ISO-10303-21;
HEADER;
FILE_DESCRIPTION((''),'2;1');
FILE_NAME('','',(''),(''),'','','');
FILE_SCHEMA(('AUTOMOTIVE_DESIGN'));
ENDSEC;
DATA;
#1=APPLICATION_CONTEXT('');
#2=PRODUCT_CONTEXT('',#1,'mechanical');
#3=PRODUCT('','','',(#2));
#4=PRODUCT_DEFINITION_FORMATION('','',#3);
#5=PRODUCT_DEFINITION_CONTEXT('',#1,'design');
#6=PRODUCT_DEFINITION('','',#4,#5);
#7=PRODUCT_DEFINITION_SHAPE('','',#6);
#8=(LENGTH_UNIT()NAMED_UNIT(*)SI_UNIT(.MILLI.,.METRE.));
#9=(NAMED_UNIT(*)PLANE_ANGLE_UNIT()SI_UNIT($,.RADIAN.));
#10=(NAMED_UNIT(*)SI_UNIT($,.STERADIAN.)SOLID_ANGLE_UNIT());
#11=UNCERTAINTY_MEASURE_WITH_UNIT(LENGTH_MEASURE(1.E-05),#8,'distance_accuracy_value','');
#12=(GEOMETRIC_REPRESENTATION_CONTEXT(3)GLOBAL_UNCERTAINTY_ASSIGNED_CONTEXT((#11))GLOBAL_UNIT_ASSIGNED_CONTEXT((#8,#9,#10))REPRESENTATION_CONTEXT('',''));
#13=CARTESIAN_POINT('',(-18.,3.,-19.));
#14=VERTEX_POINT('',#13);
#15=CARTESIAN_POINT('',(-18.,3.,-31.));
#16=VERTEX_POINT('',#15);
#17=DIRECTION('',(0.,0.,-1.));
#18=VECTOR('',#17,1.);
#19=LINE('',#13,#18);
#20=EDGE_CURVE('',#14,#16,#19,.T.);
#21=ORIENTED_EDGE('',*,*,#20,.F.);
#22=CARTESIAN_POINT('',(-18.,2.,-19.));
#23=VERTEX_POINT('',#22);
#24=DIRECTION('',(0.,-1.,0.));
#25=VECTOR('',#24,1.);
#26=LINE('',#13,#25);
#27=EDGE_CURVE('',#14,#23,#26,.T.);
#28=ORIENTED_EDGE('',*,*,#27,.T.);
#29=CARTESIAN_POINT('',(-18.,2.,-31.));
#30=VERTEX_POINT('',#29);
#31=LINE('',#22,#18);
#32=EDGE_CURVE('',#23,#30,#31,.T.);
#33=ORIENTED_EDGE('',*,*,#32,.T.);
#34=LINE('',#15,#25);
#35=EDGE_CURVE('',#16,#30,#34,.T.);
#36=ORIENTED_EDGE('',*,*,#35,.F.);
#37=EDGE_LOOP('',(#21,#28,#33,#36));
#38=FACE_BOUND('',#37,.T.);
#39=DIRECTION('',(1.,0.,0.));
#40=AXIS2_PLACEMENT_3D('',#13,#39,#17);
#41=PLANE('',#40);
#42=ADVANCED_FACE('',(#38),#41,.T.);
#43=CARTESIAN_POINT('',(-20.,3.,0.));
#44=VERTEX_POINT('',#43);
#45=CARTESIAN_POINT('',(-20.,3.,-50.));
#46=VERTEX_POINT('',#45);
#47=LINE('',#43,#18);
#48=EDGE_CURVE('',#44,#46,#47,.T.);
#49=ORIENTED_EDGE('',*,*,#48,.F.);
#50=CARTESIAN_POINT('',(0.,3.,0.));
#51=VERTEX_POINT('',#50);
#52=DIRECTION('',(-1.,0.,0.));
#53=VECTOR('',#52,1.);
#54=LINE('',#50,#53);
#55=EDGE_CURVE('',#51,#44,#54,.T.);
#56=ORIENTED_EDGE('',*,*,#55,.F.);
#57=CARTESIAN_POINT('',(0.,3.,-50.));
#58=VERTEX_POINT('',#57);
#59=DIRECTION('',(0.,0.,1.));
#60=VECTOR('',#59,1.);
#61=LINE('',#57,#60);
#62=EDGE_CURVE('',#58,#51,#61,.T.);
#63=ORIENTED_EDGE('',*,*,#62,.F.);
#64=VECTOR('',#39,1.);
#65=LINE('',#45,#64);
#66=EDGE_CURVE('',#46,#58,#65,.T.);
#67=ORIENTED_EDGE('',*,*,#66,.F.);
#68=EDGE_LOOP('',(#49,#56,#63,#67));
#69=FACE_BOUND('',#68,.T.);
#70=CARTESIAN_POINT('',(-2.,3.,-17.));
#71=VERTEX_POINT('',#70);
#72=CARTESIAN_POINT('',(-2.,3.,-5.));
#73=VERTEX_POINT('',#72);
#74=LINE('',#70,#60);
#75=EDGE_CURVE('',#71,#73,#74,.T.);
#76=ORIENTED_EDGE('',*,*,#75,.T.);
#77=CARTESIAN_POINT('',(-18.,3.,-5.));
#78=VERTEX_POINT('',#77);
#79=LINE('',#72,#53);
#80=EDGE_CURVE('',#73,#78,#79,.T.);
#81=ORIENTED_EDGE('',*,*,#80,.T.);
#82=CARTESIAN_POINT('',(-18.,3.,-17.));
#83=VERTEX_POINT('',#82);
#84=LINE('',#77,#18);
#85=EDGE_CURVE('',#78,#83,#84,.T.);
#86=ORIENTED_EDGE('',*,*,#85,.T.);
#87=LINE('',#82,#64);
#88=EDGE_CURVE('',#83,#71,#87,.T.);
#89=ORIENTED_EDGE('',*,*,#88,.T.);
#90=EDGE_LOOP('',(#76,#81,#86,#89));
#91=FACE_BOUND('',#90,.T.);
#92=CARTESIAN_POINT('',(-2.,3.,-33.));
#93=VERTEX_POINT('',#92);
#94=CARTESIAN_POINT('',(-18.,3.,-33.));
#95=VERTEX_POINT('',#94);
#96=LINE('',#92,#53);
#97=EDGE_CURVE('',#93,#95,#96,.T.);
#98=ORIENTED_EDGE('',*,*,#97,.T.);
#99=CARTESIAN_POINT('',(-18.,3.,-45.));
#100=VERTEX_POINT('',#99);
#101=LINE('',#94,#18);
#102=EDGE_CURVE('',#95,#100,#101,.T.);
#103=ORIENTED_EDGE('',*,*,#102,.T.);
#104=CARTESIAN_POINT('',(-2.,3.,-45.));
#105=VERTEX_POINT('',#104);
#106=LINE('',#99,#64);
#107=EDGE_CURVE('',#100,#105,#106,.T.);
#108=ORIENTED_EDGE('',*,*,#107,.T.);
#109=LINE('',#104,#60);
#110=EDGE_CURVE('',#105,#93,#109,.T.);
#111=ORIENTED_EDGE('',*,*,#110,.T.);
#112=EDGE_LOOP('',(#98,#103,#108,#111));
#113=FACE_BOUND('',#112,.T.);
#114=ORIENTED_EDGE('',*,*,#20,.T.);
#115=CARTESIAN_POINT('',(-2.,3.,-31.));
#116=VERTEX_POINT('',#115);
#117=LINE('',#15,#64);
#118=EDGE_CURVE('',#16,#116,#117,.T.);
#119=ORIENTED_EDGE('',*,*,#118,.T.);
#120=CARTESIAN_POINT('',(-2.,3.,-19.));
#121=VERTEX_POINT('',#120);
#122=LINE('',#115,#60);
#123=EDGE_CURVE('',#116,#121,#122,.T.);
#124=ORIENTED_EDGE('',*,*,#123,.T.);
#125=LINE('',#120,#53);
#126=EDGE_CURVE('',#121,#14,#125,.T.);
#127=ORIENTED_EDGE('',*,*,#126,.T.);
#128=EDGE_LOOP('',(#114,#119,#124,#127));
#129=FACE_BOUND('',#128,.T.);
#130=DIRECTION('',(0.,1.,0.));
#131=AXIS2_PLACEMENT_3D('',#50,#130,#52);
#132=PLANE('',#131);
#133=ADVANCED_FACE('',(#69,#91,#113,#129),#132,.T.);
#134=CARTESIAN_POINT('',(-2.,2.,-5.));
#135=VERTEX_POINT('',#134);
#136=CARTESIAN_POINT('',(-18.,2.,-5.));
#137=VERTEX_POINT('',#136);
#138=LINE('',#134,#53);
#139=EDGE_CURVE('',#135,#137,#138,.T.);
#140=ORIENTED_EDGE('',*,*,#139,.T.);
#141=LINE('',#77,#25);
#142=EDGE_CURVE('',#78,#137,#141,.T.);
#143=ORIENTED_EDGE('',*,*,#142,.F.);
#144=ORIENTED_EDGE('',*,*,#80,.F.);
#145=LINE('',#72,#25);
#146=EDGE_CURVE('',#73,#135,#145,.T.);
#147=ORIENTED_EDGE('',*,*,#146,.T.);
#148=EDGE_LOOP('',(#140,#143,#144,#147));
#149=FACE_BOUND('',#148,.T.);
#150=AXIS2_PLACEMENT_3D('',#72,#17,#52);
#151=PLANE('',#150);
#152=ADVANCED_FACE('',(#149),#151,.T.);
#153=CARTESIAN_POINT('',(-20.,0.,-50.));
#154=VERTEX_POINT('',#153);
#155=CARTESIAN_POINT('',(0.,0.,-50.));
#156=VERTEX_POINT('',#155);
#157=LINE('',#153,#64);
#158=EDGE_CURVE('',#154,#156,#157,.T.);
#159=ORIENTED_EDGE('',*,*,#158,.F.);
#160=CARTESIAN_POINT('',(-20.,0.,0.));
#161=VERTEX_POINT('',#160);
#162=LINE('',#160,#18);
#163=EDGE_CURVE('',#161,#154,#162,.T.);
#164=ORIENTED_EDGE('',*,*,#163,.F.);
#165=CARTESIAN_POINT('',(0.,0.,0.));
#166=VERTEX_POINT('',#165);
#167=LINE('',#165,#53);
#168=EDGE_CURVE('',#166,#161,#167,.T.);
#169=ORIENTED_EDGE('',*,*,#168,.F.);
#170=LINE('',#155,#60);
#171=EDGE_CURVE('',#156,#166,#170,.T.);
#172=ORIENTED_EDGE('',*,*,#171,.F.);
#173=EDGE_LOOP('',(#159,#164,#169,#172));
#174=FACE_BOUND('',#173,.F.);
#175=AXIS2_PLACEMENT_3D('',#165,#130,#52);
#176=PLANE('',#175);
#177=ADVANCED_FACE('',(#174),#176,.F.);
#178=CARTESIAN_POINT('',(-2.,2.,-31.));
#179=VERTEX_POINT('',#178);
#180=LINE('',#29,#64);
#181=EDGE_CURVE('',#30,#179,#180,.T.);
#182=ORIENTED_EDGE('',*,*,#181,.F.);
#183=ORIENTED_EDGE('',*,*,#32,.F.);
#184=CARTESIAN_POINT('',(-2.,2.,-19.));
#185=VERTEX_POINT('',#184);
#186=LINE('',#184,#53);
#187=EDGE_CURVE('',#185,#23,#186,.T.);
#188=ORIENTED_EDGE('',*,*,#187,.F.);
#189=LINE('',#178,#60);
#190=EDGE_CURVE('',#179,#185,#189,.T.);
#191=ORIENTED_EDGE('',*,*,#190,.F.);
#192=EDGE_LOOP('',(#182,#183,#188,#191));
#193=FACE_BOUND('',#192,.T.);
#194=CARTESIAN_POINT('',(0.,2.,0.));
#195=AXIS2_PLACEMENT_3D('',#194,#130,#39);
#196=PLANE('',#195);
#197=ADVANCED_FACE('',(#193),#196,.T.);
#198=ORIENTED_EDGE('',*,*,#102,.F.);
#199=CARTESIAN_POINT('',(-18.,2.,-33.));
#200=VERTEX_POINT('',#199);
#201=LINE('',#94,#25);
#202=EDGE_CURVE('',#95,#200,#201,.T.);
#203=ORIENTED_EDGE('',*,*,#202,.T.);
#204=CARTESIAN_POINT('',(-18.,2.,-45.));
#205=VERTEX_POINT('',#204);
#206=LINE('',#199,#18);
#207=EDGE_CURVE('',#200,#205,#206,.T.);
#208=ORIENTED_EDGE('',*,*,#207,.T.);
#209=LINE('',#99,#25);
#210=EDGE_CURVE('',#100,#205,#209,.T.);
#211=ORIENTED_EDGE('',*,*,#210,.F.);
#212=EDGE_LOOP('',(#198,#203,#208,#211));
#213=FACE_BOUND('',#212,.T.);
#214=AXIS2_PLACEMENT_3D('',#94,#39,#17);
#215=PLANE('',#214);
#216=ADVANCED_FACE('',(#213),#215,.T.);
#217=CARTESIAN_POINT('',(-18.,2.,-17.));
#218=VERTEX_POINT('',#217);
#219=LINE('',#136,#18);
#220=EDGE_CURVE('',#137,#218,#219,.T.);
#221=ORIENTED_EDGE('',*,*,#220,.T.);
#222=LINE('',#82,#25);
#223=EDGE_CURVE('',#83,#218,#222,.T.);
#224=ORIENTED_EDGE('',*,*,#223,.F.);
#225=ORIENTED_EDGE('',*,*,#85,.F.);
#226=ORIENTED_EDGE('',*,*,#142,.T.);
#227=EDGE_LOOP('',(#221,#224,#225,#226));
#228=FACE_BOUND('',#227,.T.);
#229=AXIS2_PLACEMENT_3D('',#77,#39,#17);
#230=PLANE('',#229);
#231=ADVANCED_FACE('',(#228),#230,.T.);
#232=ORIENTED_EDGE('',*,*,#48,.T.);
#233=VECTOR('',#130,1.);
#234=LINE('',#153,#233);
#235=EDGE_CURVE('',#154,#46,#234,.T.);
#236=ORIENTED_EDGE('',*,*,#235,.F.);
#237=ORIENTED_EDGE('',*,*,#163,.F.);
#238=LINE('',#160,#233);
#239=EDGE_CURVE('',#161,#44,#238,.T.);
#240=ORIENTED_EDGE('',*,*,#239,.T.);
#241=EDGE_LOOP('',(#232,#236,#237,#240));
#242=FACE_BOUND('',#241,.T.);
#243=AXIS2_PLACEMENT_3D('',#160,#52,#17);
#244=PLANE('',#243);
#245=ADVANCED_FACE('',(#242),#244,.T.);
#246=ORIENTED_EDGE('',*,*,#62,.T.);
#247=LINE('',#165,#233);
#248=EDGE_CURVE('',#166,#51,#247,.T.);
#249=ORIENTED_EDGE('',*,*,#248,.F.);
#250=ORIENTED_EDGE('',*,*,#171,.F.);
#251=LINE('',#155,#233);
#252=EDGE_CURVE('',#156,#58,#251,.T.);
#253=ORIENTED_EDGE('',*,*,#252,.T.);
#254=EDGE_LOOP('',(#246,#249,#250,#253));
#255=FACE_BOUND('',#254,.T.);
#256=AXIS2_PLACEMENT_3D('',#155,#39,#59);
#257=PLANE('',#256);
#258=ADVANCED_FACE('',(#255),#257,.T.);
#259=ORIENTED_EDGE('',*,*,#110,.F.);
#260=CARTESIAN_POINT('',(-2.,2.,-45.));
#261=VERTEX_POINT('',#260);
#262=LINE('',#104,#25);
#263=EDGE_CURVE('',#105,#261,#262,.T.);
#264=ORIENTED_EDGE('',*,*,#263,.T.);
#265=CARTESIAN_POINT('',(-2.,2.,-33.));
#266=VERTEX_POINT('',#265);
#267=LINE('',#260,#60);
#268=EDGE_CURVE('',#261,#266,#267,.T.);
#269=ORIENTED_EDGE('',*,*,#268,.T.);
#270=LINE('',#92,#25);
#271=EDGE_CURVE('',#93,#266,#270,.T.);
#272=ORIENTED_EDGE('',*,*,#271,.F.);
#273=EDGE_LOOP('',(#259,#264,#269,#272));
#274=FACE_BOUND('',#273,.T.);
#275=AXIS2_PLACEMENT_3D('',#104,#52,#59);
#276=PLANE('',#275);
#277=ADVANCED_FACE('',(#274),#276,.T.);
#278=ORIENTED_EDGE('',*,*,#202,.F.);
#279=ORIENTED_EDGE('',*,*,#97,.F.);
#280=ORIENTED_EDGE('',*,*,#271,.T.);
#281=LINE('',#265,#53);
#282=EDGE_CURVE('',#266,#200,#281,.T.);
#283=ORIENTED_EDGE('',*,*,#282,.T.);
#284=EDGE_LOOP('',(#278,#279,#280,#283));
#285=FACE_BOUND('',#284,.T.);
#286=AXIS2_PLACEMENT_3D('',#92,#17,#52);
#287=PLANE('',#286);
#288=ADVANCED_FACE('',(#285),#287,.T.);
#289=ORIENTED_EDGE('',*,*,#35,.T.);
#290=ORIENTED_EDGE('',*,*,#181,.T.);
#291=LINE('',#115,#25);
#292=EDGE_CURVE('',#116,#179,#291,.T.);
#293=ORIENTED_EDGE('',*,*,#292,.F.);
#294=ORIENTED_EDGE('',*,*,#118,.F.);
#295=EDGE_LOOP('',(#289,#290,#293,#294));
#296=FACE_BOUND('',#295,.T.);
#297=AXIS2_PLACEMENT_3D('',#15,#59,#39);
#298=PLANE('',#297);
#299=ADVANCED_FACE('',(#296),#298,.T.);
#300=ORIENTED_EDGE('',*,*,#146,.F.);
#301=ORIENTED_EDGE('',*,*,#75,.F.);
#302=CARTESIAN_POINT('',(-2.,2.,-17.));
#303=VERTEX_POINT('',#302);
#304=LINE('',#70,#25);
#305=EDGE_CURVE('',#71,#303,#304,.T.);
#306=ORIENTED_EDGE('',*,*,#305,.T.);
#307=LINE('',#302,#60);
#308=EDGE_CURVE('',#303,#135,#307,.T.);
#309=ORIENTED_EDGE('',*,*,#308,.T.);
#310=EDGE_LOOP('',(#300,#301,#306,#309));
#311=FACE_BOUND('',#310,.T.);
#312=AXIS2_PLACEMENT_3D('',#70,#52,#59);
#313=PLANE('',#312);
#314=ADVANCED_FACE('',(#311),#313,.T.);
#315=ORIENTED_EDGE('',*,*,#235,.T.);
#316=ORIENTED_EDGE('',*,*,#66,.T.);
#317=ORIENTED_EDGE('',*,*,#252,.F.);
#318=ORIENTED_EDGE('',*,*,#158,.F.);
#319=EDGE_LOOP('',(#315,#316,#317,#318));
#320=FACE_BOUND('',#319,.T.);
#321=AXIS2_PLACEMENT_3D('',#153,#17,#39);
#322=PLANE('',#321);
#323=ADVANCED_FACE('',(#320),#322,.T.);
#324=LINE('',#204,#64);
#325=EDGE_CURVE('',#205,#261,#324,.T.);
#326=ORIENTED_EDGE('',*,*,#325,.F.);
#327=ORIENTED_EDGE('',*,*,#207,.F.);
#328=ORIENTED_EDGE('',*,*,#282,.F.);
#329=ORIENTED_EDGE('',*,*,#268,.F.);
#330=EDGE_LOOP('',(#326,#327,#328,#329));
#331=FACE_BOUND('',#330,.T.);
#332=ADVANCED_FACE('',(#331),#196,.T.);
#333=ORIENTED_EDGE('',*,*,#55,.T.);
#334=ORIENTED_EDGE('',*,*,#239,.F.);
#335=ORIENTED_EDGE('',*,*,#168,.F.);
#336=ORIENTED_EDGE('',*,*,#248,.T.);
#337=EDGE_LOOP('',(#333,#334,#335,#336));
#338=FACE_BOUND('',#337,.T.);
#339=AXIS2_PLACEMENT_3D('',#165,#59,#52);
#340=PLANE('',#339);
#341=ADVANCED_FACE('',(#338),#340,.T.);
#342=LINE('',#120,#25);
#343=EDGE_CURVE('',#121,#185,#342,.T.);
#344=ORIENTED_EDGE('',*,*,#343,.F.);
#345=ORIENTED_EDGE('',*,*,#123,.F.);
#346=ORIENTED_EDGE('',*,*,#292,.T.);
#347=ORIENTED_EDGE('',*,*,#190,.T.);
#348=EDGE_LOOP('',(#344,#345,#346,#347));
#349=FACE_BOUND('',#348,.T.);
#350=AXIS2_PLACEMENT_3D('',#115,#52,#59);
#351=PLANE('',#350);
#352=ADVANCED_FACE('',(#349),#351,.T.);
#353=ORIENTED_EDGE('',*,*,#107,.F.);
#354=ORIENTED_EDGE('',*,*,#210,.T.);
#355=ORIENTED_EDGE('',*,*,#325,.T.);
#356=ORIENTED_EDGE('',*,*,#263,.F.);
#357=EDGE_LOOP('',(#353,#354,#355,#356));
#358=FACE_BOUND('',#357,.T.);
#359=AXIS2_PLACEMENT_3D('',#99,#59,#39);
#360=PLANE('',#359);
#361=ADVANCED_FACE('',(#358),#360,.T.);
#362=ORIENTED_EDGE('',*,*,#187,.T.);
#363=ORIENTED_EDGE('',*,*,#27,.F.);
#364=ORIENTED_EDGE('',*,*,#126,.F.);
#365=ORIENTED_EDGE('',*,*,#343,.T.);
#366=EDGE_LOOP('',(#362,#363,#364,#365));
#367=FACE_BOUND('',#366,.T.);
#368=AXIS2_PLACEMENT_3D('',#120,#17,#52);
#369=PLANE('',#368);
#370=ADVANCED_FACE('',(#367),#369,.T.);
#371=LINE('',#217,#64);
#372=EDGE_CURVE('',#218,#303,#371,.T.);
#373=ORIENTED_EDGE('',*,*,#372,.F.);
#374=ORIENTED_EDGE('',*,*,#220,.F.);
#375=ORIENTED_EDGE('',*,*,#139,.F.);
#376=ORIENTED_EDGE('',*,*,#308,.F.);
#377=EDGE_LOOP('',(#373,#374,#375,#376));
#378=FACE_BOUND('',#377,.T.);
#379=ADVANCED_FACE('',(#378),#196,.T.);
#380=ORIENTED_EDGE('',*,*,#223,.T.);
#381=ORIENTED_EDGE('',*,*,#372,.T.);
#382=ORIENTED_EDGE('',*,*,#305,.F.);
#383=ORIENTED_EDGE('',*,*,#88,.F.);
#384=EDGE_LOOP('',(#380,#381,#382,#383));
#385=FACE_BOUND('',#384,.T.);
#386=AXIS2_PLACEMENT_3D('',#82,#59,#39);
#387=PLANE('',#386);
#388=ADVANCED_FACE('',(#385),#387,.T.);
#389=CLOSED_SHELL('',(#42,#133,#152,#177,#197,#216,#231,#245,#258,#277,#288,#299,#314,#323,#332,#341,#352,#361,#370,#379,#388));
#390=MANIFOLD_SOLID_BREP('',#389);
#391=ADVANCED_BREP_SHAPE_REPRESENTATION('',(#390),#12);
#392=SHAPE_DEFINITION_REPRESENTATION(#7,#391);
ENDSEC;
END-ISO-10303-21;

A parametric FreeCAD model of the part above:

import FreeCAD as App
import Part
import Sketcher

V = App.Vector


def add_polygon(sketch, points):
    """Adds a closed chain of lines whose ends are joined by coincident constraints."""
    first, n = sketch.GeometryCount, len(points)
    for a, b in zip(points, points[1:] + points[:1]):
        sketch.addGeometry(Part.LineSegment(App.Vector(*a, 0), App.Vector(*b, 0)), False)
    for i in range(n):
        sketch.addConstraint(Sketcher.Constraint("Coincident", first + i, 2, first + (i + 1) % n, 1))

doc = App.newDocument("Part")
body = doc.addObject("PartDesign::Body", "Body")

sketch1 = body.newObject("Sketcher::SketchObject", "Sketch")
sketch1.AttachmentSupport = (doc.getObject("XZ_Plane"), [""])
sketch1.MapMode = "FlatFace"
add_polygon(sketch1, [(-20, 0), (0, 0), (0, -50), (-20, -50)])
sketch1.addConstraint([
    Sketcher.Constraint("Horizontal", 0),
    Sketcher.Constraint("Vertical", 1),
    Sketcher.Constraint("Horizontal", 2),
    Sketcher.Constraint("Vertical", 3),
    Sketcher.Constraint("Coincident", 0, 2, -1, 1),
    Sketcher.Constraint("DistanceX", 0, 1, 0, 2, 20.0),
    Sketcher.Constraint("DistanceY", 1, 2, 1, 1, 50.0),
])
pad1 = body.newObject("PartDesign::Pad", "Pad")
pad1.Profile = sketch1
pad1.Length = 3
pad1.Reversed = True

sketch2 = body.newObject("Sketcher::SketchObject", "Sketch001")
sketch2.AttachmentSupport = (doc.getObject("XZ_Plane"), [""])
sketch2.MapMode = "FlatFace"
sketch2.AttachmentOffset = App.Placement(V(0, 0, -3), App.Rotation())
add_polygon(sketch2, [(-2, -45), (-18, -45), (-18, -33), (-2, -33)])
add_polygon(sketch2, [(-2, -31), (-18, -31), (-18, -19), (-2, -19)])
add_polygon(sketch2, [(-2, -17), (-18, -17), (-18, -5), (-2, -5)])
sketch2.addConstraint([
    Sketcher.Constraint("Horizontal", 0),
    Sketcher.Constraint("Vertical", 1),
    Sketcher.Constraint("Horizontal", 2),
    Sketcher.Constraint("Vertical", 3),
    Sketcher.Constraint("Horizontal", 4),
    Sketcher.Constraint("Vertical", 5),
    Sketcher.Constraint("Horizontal", 6),
    Sketcher.Constraint("Vertical", 7),
    Sketcher.Constraint("Horizontal", 8),
    Sketcher.Constraint("Vertical", 9),
    Sketcher.Constraint("Horizontal", 10),
    Sketcher.Constraint("Vertical", 11),
    Sketcher.Constraint("Vertical", 1, 2, 4, 2),
    Sketcher.Constraint("Vertical", 3, 2, 6, 2),
    Sketcher.Constraint("Vertical", 5, 2, 8, 2),
    Sketcher.Constraint("Vertical", 7, 2, 10, 2),
    Sketcher.Constraint("Equal", 3, 5),
    Sketcher.Constraint("Equal", 7, 9),
    Sketcher.Constraint("DistanceY", 1, 1, 1, 2, 12.0),
    Sketcher.Constraint("DistanceX", 2, 2, -1, 1, 2.0),
    Sketcher.Constraint("DistanceY", 9, 2, -1, 1, 5.0),
    Sketcher.Constraint("DistanceY", 1, 2, 4, 2, 2.0),
    Sketcher.Constraint("DistanceY", 5, 2, 8, 2, 2.0),
    Sketcher.Constraint("DistanceX", 0, 2, 0, 1, 16.0),
])
pocket1 = body.newObject("PartDesign::Pocket", "Pocket")
pocket1.Profile = sketch2
pocket1.Length = 1
pocket1.Reversed = True

doc.recompute()
